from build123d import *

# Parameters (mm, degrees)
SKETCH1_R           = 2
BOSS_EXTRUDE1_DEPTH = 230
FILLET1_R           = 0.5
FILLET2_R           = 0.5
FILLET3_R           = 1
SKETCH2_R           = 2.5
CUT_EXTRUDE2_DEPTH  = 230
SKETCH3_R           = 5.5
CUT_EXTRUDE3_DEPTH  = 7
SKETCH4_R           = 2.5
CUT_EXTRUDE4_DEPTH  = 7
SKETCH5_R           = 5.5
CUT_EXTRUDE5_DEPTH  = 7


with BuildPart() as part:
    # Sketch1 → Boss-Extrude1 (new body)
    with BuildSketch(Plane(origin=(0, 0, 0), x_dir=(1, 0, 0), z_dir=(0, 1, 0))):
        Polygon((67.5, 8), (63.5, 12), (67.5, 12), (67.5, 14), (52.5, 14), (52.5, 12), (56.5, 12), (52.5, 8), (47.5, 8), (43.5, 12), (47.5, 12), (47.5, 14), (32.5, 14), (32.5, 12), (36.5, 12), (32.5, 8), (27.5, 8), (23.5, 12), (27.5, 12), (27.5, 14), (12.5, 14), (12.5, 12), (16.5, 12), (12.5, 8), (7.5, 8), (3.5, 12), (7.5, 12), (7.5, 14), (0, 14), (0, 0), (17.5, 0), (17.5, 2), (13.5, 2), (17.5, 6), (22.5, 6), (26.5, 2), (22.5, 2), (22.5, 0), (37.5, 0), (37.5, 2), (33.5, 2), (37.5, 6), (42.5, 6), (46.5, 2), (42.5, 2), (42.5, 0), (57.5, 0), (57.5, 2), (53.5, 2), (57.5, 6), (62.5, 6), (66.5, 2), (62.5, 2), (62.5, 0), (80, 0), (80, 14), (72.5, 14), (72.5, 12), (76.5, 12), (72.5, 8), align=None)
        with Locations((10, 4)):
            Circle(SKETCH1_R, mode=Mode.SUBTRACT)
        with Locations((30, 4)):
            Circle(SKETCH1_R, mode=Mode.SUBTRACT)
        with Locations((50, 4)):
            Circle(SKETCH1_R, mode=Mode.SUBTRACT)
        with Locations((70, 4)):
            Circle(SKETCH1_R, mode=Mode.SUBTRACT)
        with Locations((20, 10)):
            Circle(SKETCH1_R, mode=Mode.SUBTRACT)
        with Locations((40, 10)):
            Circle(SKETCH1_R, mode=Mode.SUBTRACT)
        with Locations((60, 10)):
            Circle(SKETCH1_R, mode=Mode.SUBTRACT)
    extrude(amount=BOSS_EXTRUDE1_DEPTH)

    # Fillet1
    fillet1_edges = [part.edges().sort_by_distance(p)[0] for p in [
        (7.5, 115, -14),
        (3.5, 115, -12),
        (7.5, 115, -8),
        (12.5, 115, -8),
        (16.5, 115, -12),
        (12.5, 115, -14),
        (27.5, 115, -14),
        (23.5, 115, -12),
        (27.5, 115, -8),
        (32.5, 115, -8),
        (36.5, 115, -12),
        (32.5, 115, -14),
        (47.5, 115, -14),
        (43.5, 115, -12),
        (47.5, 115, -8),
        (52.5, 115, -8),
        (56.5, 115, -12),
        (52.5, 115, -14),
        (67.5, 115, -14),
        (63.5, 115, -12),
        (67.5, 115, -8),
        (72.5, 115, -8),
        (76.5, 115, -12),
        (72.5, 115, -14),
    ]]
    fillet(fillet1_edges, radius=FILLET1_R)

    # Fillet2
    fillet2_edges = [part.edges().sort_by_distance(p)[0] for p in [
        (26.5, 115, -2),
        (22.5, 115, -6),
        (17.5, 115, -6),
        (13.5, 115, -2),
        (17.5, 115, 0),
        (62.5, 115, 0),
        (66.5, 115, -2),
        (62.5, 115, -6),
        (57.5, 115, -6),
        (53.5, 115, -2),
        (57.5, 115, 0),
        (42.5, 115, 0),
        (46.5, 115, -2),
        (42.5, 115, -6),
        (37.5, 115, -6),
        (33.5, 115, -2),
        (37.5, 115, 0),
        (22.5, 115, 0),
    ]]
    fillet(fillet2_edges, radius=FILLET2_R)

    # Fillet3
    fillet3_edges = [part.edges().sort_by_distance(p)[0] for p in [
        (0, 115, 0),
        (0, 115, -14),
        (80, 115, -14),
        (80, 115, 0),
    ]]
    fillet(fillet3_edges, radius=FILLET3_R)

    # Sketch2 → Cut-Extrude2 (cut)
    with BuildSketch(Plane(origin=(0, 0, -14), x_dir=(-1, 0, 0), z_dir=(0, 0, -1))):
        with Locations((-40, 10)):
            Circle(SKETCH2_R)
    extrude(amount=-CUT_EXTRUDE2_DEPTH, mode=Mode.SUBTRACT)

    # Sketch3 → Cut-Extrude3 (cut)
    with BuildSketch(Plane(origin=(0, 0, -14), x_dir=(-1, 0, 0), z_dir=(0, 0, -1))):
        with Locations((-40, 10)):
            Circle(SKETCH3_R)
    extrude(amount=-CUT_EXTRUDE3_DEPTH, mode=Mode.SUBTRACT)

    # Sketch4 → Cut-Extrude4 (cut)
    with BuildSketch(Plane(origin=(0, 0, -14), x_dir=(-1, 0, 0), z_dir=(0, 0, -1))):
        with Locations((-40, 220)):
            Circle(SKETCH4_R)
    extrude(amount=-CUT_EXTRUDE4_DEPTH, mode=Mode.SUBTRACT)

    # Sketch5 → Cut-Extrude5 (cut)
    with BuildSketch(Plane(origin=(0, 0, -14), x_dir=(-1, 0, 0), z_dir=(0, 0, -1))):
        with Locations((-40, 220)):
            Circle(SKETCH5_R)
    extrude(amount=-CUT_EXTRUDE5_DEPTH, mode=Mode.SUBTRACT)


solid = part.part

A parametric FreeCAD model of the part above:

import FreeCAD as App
import Part
import Sketcher

V = App.Vector


def edges_at(feature, points):
    """Names of the edges that pass closest to the given points."""
    edges = feature.Shape.Edges
    near = lambda p: min(range(len(edges)), key=lambda i: edges[i].distToShape(Part.Vertex(*p))[0])
    return sorted({f"Edge{near(p) + 1}" for p in points})


def add_polygon(sketch, points):
    """Adds a closed chain of lines whose ends are joined by coincident constraints."""
    first, n = sketch.GeometryCount, len(points)
    for a, b in zip(points, points[1:] + points[:1]):
        sketch.addGeometry(Part.LineSegment(App.Vector(*a, 0), App.Vector(*b, 0)), False)
    for i in range(n):
        sketch.addConstraint(Sketcher.Constraint("Coincident", first + i, 2, first + (i + 1) % n, 1))

doc = App.newDocument("Part")
body = doc.addObject("PartDesign::Body", "Body")

# Sketch on XZ plane
sketch1 = body.newObject("Sketcher::SketchObject", "Sketch")
sketch1.AttachmentSupport = (doc.getObject("XZ_Plane"), [""])
sketch1.MapMode = "FlatFace"
add_polygon(sketch1, [(67.5, -8), (63.5, -12), (67.5, -12), (67.5, -14), (52.5, -14), (52.5, -12), (56.5, -12), (52.5, -8), (47.5, -8), (43.5, -12), (47.5, -12), (47.5, -14), (32.5, -14), (32.5, -12), (36.5, -12), (32.5, -8), (27.5, -8), (23.5, -12), (27.5, -12), (27.5, -14), (12.5, -14), (12.5, -12), (16.5, -12), (12.5, -8), (7.5, -8), (3.5, -12), (7.5, -12), (7.5, -14), (0, -14), (0, 0), (17.5, 0), (17.5, -2), (13.5, -2), (17.5, -6), (22.5, -6), (26.5, -2), (22.5, -2), (22.5, 0), (37.5, 0), (37.5, -2), (33.5, -2), (37.5, -6), (42.5, -6), (46.5, -2), (42.5, -2), (42.5, 0), (57.5, 0), (57.5, -2), (53.5, -2), (57.5, -6), (62.5, -6), (66.5, -2), (62.5, -2), (62.5, 0), (80, 0), (80, -14), (72.5, -14), (72.5, -12), (76.5, -12), (72.5, -8)])  # lines 0-59
sketch1.addGeometry(Part.Circle(V(10, -4, 0), V(0, 0, 1), 2), False)  # 60
sketch1.addGeometry(Part.Circle(V(30, -4, 0), V(0, 0, 1), 2), False)  # 61
sketch1.addGeometry(Part.Circle(V(50, -4, 0), V(0, 0, 1), 2), False)  # 62
sketch1.addGeometry(Part.Circle(V(70, -4, 0), V(0, 0, 1), 2), False)  # 63
sketch1.addGeometry(Part.Circle(V(20, -10, 0), V(0, 0, 1), 2), False)  # 64
sketch1.addGeometry(Part.Circle(V(40, -10, 0), V(0, 0, 1), 2), False)  # 65
sketch1.addGeometry(Part.Circle(V(60, -10, 0), V(0, 0, 1), 2), False)  # 66
sketch1.addConstraint(Sketcher.Constraint("Horizontal", 1))
sketch1.addConstraint(Sketcher.Constraint("Vertical", 2))
sketch1.addConstraint(Sketcher.Constraint("Horizontal", 3))
sketch1.addConstraint(Sketcher.Constraint("Vertical", 4))
sketch1.addConstraint(Sketcher.Constraint("Horizontal", 5))
sketch1.addConstraint(Sketcher.Constraint("Horizontal", 7))
sketch1.addConstraint(Sketcher.Constraint("Horizontal", 9))
sketch1.addConstraint(Sketcher.Constraint("Vertical", 10))
sketch1.addConstraint(Sketcher.Constraint("Horizontal", 11))
sketch1.addConstraint(Sketcher.Constraint("Vertical", 12))
sketch1.addConstraint(Sketcher.Constraint("Horizontal", 13))
sketch1.addConstraint(Sketcher.Constraint("Horizontal", 15))
sketch1.addConstraint(Sketcher.Constraint("Horizontal", 17))
sketch1.addConstraint(Sketcher.Constraint("Vertical", 18))
sketch1.addConstraint(Sketcher.Constraint("Horizontal", 19))
sketch1.addConstraint(Sketcher.Constraint("Vertical", 20))
sketch1.addConstraint(Sketcher.Constraint("Horizontal", 21))
sketch1.addConstraint(Sketcher.Constraint("Horizontal", 23))
sketch1.addConstraint(Sketcher.Constraint("Horizontal", 25))
sketch1.addConstraint(Sketcher.Constraint("Vertical", 26))
sketch1.addConstraint(Sketcher.Constraint("Horizontal", 27))
sketch1.addConstraint(Sketcher.Constraint("Vertical", 28))
sketch1.addConstraint(Sketcher.Constraint("Horizontal", 29))
sketch1.addConstraint(Sketcher.Constraint("Vertical", 30))
sketch1.addConstraint(Sketcher.Constraint("Horizontal", 31))
sketch1.addConstraint(Sketcher.Constraint("Horizontal", 33))
sketch1.addConstraint(Sketcher.Constraint("Horizontal", 35))
sketch1.addConstraint(Sketcher.Constraint("Vertical", 36))
sketch1.addConstraint(Sketcher.Constraint("Horizontal", 37))
sketch1.addConstraint(Sketcher.Constraint("Vertical", 38))
sketch1.addConstraint(Sketcher.Constraint("Horizontal", 39))
sketch1.addConstraint(Sketcher.Constraint("Horizontal", 41))
sketch1.addConstraint(Sketcher.Constraint("Horizontal", 43))
sketch1.addConstraint(Sketcher.Constraint("Vertical", 44))
sketch1.addConstraint(Sketcher.Constraint("Horizontal", 45))
sketch1.addConstraint(Sketcher.Constraint("Vertical", 46))
sketch1.addConstraint(Sketcher.Constraint("Horizontal", 47))
sketch1.addConstraint(Sketcher.Constraint("Horizontal", 49))
sketch1.addConstraint(Sketcher.Constraint("Horizontal", 51))
sketch1.addConstraint(Sketcher.Constraint("Vertical", 52))
sketch1.addConstraint(Sketcher.Constraint("Horizontal", 53))
sketch1.addConstraint(Sketcher.Constraint("Vertical", 54))
sketch1.addConstraint(Sketcher.Constraint("Horizontal", 55))
sketch1.addConstraint(Sketcher.Constraint("Vertical", 56))
sketch1.addConstraint(Sketcher.Constraint("Horizontal", 57))
sketch1.addConstraint(Sketcher.Constraint("Horizontal", 59))
sketch1.addConstraint(Sketcher.Constraint("Coincident", 28, 2, -1, 1))
sketch1.addConstraint(Sketcher.Constraint("Equal", 60, 61))
sketch1.addConstraint(Sketcher.Constraint("Equal", 61, 62))
sketch1.addConstraint(Sketcher.Constraint("Equal", 62, 63))
sketch1.addConstraint(Sketcher.Constraint("Equal", 63, 64))
sketch1.addConstraint(Sketcher.Constraint("Equal", 64, 65))
sketch1.addConstraint(Sketcher.Constraint("Equal", 65, 66))
sketch1.addConstraint(Sketcher.Constraint("PointOnObject", 36, 2, -1))
sketch1.addConstraint(Sketcher.Constraint("PointOnObject", 44, 2, -1))
sketch1.addConstraint(Sketcher.Constraint("PointOnObject", 52, 2, -1))
sketch1.addConstraint(Sketcher.Constraint("Perpendicular", 0, 6))
sketch1.addConstraint(Sketcher.Constraint("Perpendicular", 6, 8))
sketch1.addConstraint(Sketcher.Constraint("Perpendicular", 8, 14))
sketch1.addConstraint(Sketcher.Constraint("Perpendicular", 14, 16))
sketch1.addConstraint(Sketcher.Constraint("Perpendicular", 16, 22))
sketch1.addConstraint(Sketcher.Constraint("Perpendicular", 22, 24))
sketch1.addConstraint(Sketcher.Constraint("Perpendicular", 24, 32))
sketch1.addConstraint(Sketcher.Constraint("Perpendicular", 32, 34))
sketch1.addConstraint(Sketcher.Constraint("Perpendicular", 34, 40))
sketch1.addConstraint(Sketcher.Constraint("Perpendicular", 40, 42))
sketch1.addConstraint(Sketcher.Constraint("Perpendicular", 42, 48))
sketch1.addConstraint(Sketcher.Constraint("Perpendicular", 48, 50))
sketch1.addConstraint(Sketcher.Constraint("Perpendicular", 50, 58))
sketch1.addConstraint(Sketcher.Constraint("Horizontal", 60, 3, 61, 3))
sketch1.addConstraint(Sketcher.Constraint("Horizontal", 61, 3, 62, 3))
sketch1.addConstraint(Sketcher.Constraint("Horizontal", 62, 3, 63, 3))
sketch1.addConstraint(Sketcher.Constraint("Horizontal", 64, 3, 65, 3))
sketch1.addConstraint(Sketcher.Constraint("Horizontal", 65, 3, 66, 3))
sketch1.addConstraint(Sketcher.Constraint("Horizontal", 1, 2, 4, 2))
sketch1.addConstraint(Sketcher.Constraint("Horizontal", 5, 2, 8, 2))
sketch1.addConstraint(Sketcher.Constraint("Horizontal", 3, 2, 10, 2))
sketch1.addConstraint(Sketcher.Constraint("Horizontal", 9, 2, 12, 2))
sketch1.addConstraint(Sketcher.Constraint("Horizontal", 7, 2, 14, 2))
sketch1.addConstraint(Sketcher.Constraint("Horizontal", 13, 2, 16, 2))
sketch1.addConstraint(Sketcher.Constraint("Horizontal", 11, 2, 18, 2))
sketch1.addConstraint(Sketcher.Constraint("Horizontal", 17, 2, 20, 2))
sketch1.addConstraint(Sketcher.Constraint("Horizontal", 15, 2, 22, 2))
sketch1.addConstraint(Sketcher.Constraint("Horizontal", 21, 2, 24, 2))
sketch1.addConstraint(Sketcher.Constraint("Horizontal", 19, 2, 26, 2))
sketch1.addConstraint(Sketcher.Constraint("Horizontal", 31, 2, 34, 2))
sketch1.addConstraint(Sketcher.Constraint("Horizontal", 35, 2, 38, 2))
sketch1.addConstraint(Sketcher.Constraint("Horizontal", 33, 2, 40, 2))
sketch1.addConstraint(Sketcher.Constraint("Horizontal", 39, 2, 42, 2))
sketch1.addConstraint(Sketcher.Constraint("Horizontal", 43, 2, 46, 2))
sketch1.addConstraint(Sketcher.Constraint("Horizontal", 41, 2, 48, 2))
sketch1.addConstraint(Sketcher.Constraint("Horizontal", 47, 2, 50, 2))
sketch1.addConstraint(Sketcher.Constraint("Horizontal", 27, 2, 54, 2))
sketch1.addConstraint(Sketcher.Constraint("Horizontal", 25, 2, 56, 2))
sketch1.addConstraint(Sketcher.Constraint("Horizontal", 23, 2, 58, 2))
sketch1.addConstraint(Sketcher.Constraint("Vertical", 4, 2, 6, 2))
sketch1.addConstraint(Sketcher.Constraint("Vertical", 7, 2, 9, 2))
sketch1.addConstraint(Sketcher.Constraint("Vertical", 12, 2, 14, 2))
sketch1.addConstraint(Sketcher.Constraint("Vertical", 15, 2, 17, 2))
sketch1.addConstraint(Sketcher.Constraint("Vertical", 20, 2, 22, 2))
sketch1.addConstraint(Sketcher.Constraint("Vertical", 23, 2, 25, 2))
sketch1.addConstraint(Sketcher.Constraint("Vertical", 30, 2, 32, 2))
sketch1.addConstraint(Sketcher.Constraint("Vertical", 33, 2, 35, 2))
sketch1.addConstraint(Sketcher.Constraint("Vertical", 38, 2, 40, 2))
sketch1.addConstraint(Sketcher.Constraint("Vertical", 41, 2, 43, 2))
sketch1.addConstraint(Sketcher.Constraint("Vertical", 46, 2, 48, 2))
sketch1.addConstraint(Sketcher.Constraint("Vertical", 49, 2, 51, 2))
sketch1.addConstraint(Sketcher.Constraint("Vertical", 56, 2, 58, 2))
sketch1.addConstraint(Sketcher.Constraint("Vertical", 2, 2, 59, 2))
sketch1.addConstraint(Sketcher.Constraint("Equal", 1, 5))
sketch1.addConstraint(Sketcher.Constraint("Equal", 3, 11))
sketch1.addConstraint(Sketcher.Constraint("Equal", 7, 15))
sketch1.addConstraint(Sketcher.Constraint("Equal", 11, 19))
sketch1.addConstraint(Sketcher.Constraint("Equal", 15, 23))
sketch1.addConstraint(Sketcher.Constraint("Equal", 25, 31))
sketch1.addConstraint(Sketcher.Constraint("Equal", 23, 33))
sketch1.addConstraint(Sketcher.Constraint("Equal", 19, 37))
sketch1.addConstraint(Sketcher.Constraint("Equal", 33, 41))
sketch1.addConstraint(Sketcher.Constraint("Equal", 37, 45))
sketch1.addConstraint(Sketcher.Constraint("Equal", 41, 49))
sketch1.addConstraint(Sketcher.Constraint("Equal", 29, 53))
sketch1.addConstraint(Sketcher.Constraint("Equal", 27, 55))
sketch1.addConstraint(Sketcher.Constraint("Equal", 49, 59))
sketch1.addConstraint(Sketcher.Constraint("Equal", 26, 30))
sketch1.addConstraint(Sketcher.Constraint("Diameter", 60, 4.0))
sketch1.addConstraint(Sketcher.Constraint("DistanceX", 1, 1, 1, 2, 4.0))
sketch1.addConstraint(Sketcher.Constraint("DistanceX", 3, 2, 3, 1, 15.0))
sketch1.addConstraint(Sketcher.Constraint("DistanceX", 7, 2, 7, 1, 5.0))
sketch1.addConstraint(Sketcher.Constraint("DistanceY", 2, 2, 2, 1, 2.0))
sketch1.addConstraint(Sketcher.Constraint("DistanceY", 28, 1, 28, 2, 14.0))
sketch1.addConstraint(Sketcher.Constraint("DistanceX", 27, 2, 27, 1, 7.5))
sketch1.addConstraint(Sketcher.Constraint("DistanceX", -1, 1, 60, 3, 10.0))
sketch1.addConstraint(Sketcher.Constraint("DistanceY", 60, 3, -1, 1, 4.0))
sketch1.addConstraint(Sketcher.Constraint("DistanceX", -1, 1, 61, 3, 30.0))
sketch1.addConstraint(Sketcher.Constraint("DistanceX", -1, 1, 62, 3, 50.0))
sketch1.addConstraint(Sketcher.Constraint("DistanceX", -1, 1, 63, 3, 70.0))
sketch1.addConstraint(Sketcher.Constraint("DistanceX", -1, 1, 64, 3, 20.0))
sketch1.addConstraint(Sketcher.Constraint("DistanceY", 64, 3, -1, 1, 10.0))
sketch1.addConstraint(Sketcher.Constraint("DistanceX", -1, 1, 65, 3, 40.0))
sketch1.addConstraint(Sketcher.Constraint("DistanceX", -1, 1, 66, 3, 60.0))
pad1 = body.newObject("PartDesign::Pad", "Pad")
pad1.Profile = sketch1
pad1.Length = 230
pad1.Reversed = True
doc.recompute()

fillet = body.newObject("PartDesign::Fillet", "Fillet")
fillet.Base = (pad1, edges_at(pad1, [
    (7.5, 115, -14),
    (3.5, 115, -12),
    (7.5, 115, -8),
    (12.5, 115, -8),
    (16.5, 115, -12),
    (12.5, 115, -14),
    (27.5, 115, -14),
    (23.5, 115, -12),
    (27.5, 115, -8),
    (32.5, 115, -8),
    (36.5, 115, -12),
    (32.5, 115, -14),
    (47.5, 115, -14),
    (43.5, 115, -12),
    (47.5, 115, -8),
    (52.5, 115, -8),
    (56.5, 115, -12),
    (52.5, 115, -14),
    (67.5, 115, -14),
    (63.5, 115, -12),
    (67.5, 115, -8),
    (72.5, 115, -8),
    (76.5, 115, -12),
    (72.5, 115, -14),
]))
fillet.Radius = 0.5
doc.recompute()

fillet2 = body.newObject("PartDesign::Fillet", "Fillet001")
fillet2.Base = (fillet, edges_at(fillet, [
    (26.5, 115, -2),
    (22.5, 115, -6),
    (17.5, 115, -6),
    (13.5, 115, -2),
    (17.5, 115, 0),
    (62.5, 115, 0),
    (66.5, 115, -2),
    (62.5, 115, -6),
    (57.5, 115, -6),
    (53.5, 115, -2),
    (57.5, 115, 0),
    (42.5, 115, 0),
    (46.5, 115, -2),
    (42.5, 115, -6),
    (37.5, 115, -6),
    (33.5, 115, -2),
    (37.5, 115, 0),
    (22.5, 115, 0),
]))
fillet2.Radius = 0.5
doc.recompute()

fillet3 = body.newObject("PartDesign::Fillet", "Fillet002")
fillet3.Base = (fillet2, edges_at(fillet2, [
    (0, 115, 0),
    (0, 115, -14),
    (80, 115, -14),
    (80, 115, 0),
]))
fillet3.Radius = 1

# Sketch on XY plane
sketch2 = body.newObject("Sketcher::SketchObject", "Sketch001")
sketch2.AttachmentSupport = (doc.getObject("XY_Plane"), [""])
sketch2.MapMode = "FlatFace"
sketch2.AttachmentOffset = App.Placement(V(0, 0, -14), App.Rotation())
sketch2.addGeometry(Part.Circle(V(40, 10, 0), V(0, 0, 1), 2.5), False)
sketch2.addConstraint(Sketcher.Constraint("Diameter", 0, 5.0))
sketch2.addConstraint(Sketcher.Constraint("DistanceX", -1, 1, 0, 3, 40.0))
sketch2.addConstraint(Sketcher.Constraint("DistanceY", -1, 1, 0, 3, 10.0))
pocket1 = body.newObject("PartDesign::Pocket", "Pocket")
pocket1.Profile = sketch2
pocket1.Length = 230
pocket1.Reversed = True

# Sketch on XY plane
sketch3 = body.newObject("Sketcher::SketchObject", "Sketch002")
sketch3.AttachmentSupport = (doc.getObject("XY_Plane"), [""])
sketch3.MapMode = "FlatFace"
sketch3.AttachmentOffset = App.Placement(V(0, 0, -14), App.Rotation())
sketch3.addGeometry(Part.Circle(V(40, 10, 0), V(0, 0, 1), 6), False)
sketch3.addConstraint(Sketcher.Constraint("Diameter", 0, 11.0))
sketch3.addConstraint(Sketcher.Constraint("DistanceX", -1, 1, 0, 3, 40.0))
sketch3.addConstraint(Sketcher.Constraint("DistanceY", -1, 1, 0, 3, 10.0))
pocket2 = body.newObject("PartDesign::Pocket", "Pocket001")
pocket2.Profile = sketch3
pocket2.Length = 7
pocket2.Reversed = True

# Sketch on XY plane
sketch4 = body.newObject("Sketcher::SketchObject", "Sketch003")
sketch4.AttachmentSupport = (doc.getObject("XY_Plane"), [""])
sketch4.MapMode = "FlatFace"
sketch4.AttachmentOffset = App.Placement(V(0, 0, -14), App.Rotation())
sketch4.addGeometry(Part.Circle(V(40, 220, 0), V(0, 0, 1), 2.5), False)
sketch4.addConstraint(Sketcher.Constraint("Diameter", 0, 5.0))
sketch4.addConstraint(Sketcher.Constraint("DistanceX", -1, 1, 0, 3, 40.0))
sketch4.addConstraint(Sketcher.Constraint("DistanceY", -1, 1, 0, 3, 220.0))
pocket3 = body.newObject("PartDesign::Pocket", "Pocket002")
pocket3.Profile = sketch4
pocket3.Length = 7
pocket3.Reversed = True

# Sketch on XY plane
sketch5 = body.newObject("Sketcher::SketchObject", "Sketch004")
sketch5.AttachmentSupport = (doc.getObject("XY_Plane"), [""])
sketch5.MapMode = "FlatFace"
sketch5.AttachmentOffset = App.Placement(V(0, 0, -14), App.Rotation())
sketch5.addGeometry(Part.Circle(V(40, 220, 0), V(0, 0, 1), 6), False)
sketch5.addConstraint(Sketcher.Constraint("Diameter", 0, 11.0))
sketch5.addConstraint(Sketcher.Constraint("DistanceX", -1, 1, 0, 3, 40.0))
sketch5.addConstraint(Sketcher.Constraint("DistanceY", -1, 1, 0, 3, 220.0))
pocket4 = body.newObject("PartDesign::Pocket", "Pocket003")
pocket4.Profile = sketch5
pocket4.Length = 7
pocket4.Reversed = True

doc.recompute()
